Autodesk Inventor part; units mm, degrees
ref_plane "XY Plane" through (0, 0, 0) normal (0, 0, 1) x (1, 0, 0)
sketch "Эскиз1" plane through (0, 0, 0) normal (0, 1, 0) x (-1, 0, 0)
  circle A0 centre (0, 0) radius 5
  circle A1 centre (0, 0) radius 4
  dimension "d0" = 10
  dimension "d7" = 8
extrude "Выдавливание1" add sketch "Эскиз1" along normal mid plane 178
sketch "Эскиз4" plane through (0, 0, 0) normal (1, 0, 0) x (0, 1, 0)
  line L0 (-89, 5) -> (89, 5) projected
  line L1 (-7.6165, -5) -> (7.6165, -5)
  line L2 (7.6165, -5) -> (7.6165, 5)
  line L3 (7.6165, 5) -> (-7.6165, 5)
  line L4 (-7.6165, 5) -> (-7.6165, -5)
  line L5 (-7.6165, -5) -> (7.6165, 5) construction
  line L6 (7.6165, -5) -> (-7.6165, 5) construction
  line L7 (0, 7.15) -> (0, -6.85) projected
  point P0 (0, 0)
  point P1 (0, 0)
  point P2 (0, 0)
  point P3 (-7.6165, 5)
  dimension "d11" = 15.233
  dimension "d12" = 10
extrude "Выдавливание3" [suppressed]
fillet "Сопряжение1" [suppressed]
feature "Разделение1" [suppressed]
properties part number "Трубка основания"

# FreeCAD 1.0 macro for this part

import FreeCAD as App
import Part
import Sketcher

doc = App.newDocument("Part")
params = doc.addObject("Spreadsheet::Sheet", "Params")
for row, (alias, value) in enumerate([
    ("sketch1_diameter", "10 mm"),
    ("sketch1_diameter2", "8 mm"),
    ("pad1_length", "178 mm"),
], start=1):
    params.set(f"A{row}", alias)
    params.set(f"B{row}", "=" + value)
    params.setAlias(f"B{row}", alias)

body = doc.addObject("PartDesign::Body", "Body")

sketch1 = body.newObject("Sketcher::SketchObject", "Sketch")
sketch1.AttachmentSupport = (doc.getObject("XZ_Plane"), [""])
sketch1.MapMode = "FlatFace"
sketch1.addGeometry([
    Part.Circle(App.Vector(0, 0, 0), App.Vector(0, 0, 1), 5),
    Part.Circle(App.Vector(0, 0, 0), App.Vector(0, 0, 1), 4),
], False)
sketch1.addConstraint([
    Sketcher.Constraint("Coincident", 0, 3, -1, 1),
    Sketcher.Constraint("Coincident", 1, 3, -1, 1),
    Sketcher.Constraint("Diameter", 0, 10.0),
    Sketcher.Constraint("Diameter", 1, 8.0),
])
sketch1.setExpression("Constraints[2]", "Params.sketch1_diameter")
sketch1.setExpression("Constraints[3]", "Params.sketch1_diameter2")
pad1 = body.newObject("PartDesign::Pad", "Pad")
pad1.Profile = sketch1
pad1.setExpression("Length", "Params.pad1_length")
pad1.Midplane = True

doc.recompute()
